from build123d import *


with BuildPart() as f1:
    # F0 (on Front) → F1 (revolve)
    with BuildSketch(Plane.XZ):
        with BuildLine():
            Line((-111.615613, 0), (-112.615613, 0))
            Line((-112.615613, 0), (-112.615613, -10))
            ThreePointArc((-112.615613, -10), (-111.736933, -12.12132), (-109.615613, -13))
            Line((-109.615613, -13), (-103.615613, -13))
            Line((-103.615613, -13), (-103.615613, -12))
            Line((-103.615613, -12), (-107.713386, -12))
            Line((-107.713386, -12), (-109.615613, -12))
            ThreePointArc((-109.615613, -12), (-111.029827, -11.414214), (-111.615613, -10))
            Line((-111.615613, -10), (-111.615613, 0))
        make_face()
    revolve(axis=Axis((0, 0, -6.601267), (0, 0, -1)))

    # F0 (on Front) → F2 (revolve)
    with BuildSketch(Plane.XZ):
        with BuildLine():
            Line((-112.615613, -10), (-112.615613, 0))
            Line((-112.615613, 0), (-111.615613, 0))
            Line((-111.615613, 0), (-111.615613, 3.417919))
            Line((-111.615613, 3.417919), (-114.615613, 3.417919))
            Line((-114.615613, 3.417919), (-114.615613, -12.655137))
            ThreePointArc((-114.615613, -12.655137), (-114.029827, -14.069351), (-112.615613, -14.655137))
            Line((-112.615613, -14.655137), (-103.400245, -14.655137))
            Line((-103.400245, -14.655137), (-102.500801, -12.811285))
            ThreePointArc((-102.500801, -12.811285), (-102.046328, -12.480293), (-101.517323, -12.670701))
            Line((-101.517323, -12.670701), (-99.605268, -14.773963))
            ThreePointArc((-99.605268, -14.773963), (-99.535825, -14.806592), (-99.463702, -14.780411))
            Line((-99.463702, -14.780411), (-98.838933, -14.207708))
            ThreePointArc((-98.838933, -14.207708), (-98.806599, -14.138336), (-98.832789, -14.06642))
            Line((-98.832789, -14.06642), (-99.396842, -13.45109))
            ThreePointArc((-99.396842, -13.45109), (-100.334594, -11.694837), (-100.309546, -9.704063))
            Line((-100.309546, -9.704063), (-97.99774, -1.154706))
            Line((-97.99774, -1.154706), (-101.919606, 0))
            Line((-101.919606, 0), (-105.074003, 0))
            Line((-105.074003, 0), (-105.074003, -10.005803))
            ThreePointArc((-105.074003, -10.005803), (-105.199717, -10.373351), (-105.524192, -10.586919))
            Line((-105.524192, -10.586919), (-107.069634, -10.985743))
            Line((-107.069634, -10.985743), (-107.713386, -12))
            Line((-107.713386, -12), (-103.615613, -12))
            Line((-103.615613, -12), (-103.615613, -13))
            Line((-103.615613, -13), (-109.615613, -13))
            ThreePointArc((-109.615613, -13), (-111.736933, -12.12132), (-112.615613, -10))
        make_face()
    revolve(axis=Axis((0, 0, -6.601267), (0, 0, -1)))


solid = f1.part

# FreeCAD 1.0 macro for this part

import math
import FreeCAD as App
import Part
import Sketcher

V = App.Vector

doc = App.newDocument("Part")
body = doc.addObject("PartDesign::Body", "Body")

# Sketch on XZ plane
sketch1 = body.newObject("Sketcher::SketchObject", "Sketch")
sketch1.AttachmentSupport = (doc.getObject("XZ_Plane"), [""])
sketch1.MapMode = "FlatFace"
sketch1.addGeometry([
    Part.LineSegment(V(-111.615613, 0, 0), V(-112.615613, 0, 0)),  # 0
    Part.LineSegment(V(-112.615613, 0, 0), V(-112.615613, -10, 0)),  # 1
    Part.ArcOfCircle(Part.Circle(V(-109.615612, -9.999999, 0), V(0, 0, 1), 3.000001), math.radians(-179.999978), math.radians(-90.000022)),  # 2
    Part.LineSegment(V(-109.615613, -13, 0), V(-103.615613, -13, 0)),  # 3
    Part.LineSegment(V(-103.615613, -13, 0), V(-103.615613, -12, 0)),  # 4
    Part.LineSegment(V(-103.615613, -12, 0), V(-109.615613, -12, 0)),  # 5
    Part.ArcOfCircle(Part.Circle(V(-109.615614, -10.000001, 0), V(0, 0, 1), 1.999999), math.radians(179.999957), math.radians(270.000043)),  # 6
    Part.LineSegment(V(-111.615613, -10, 0), V(-111.615613, 0, 0)),  # 7
], False)
sketch1.addConstraint([
    Sketcher.Constraint("Coincident", 0, 2, 1, 1),
    Sketcher.Constraint("Tangent", 1, 2, 2, 1),
    Sketcher.Constraint("Tangent", 2, 2, 3, 1),
    Sketcher.Constraint("Coincident", 3, 2, 4, 1),
    Sketcher.Constraint("Coincident", 4, 2, 5, 1),
    Sketcher.Constraint("Tangent", 5, 2, 6, 2),
    Sketcher.Constraint("Tangent", 6, 1, 7, 1),
    Sketcher.Constraint("Coincident", 7, 2, 0, 1),
    Sketcher.Constraint("Horizontal", 0),
    Sketcher.Constraint("Vertical", 1),
    Sketcher.Constraint("Horizontal", 3),
    Sketcher.Constraint("Vertical", 4),
    Sketcher.Constraint("Horizontal", 5),
    Sketcher.Constraint("Vertical", 7),
    Sketcher.Constraint("Coincident", 6, 3, 2, 3),
    Sketcher.Constraint("PointOnObject", 0, 2, -1),
    Sketcher.Constraint("Radius", 2, 3.000001),
    Sketcher.Constraint("Radius", 6, 1.999999),
    Sketcher.Constraint("DistanceX", 3, 1, 3, 2, 6.0),
    Sketcher.Constraint("DistanceY", 1, 2, 1, 1, 10.0),
    Sketcher.Constraint("DistanceX", 2, 3, -1, 1, 109.615612),
])
revolution = body.newObject("PartDesign::Revolution", "Revolution")
revolution.Profile = sketch1
revolution.ReferenceAxis = (sketch1, ["V_Axis"])
revolution.Angle = 360

# Sketch on XZ plane
sketch2 = body.newObject("Sketcher::SketchObject", "Sketch001")
sketch2.AttachmentSupport = (doc.getObject("XZ_Plane"), [""])
sketch2.MapMode = "FlatFace"
sketch2.addGeometry([
    Part.LineSegment(V(-112.615613, -10, 0), V(-112.615613, 0, 0)),  # 0
    Part.LineSegment(V(-112.615613, 0, 0), V(-111.615613, 0, 0)),  # 1
    Part.LineSegment(V(-111.615613, 0, 0), V(-111.615613, 3.417919, 0)),  # 2
    Part.LineSegment(V(-111.615613, 3.417919, 0), V(-114.615613, 3.417919, 0)),  # 3
    Part.LineSegment(V(-114.615613, 3.417919, 0), V(-114.615613, -12.655137, 0)),  # 4
    Part.ArcOfCircle(Part.Circle(V(-112.615614, -12.655138, 0), V(0, 0, 1), 1.999999), math.radians(179.999957), math.radians(270.000043)),  # 5
    Part.LineSegment(V(-112.615613, -14.655137, 0), V(-103.400245, -14.655137, 0)),  # 6
    Part.LineSegment(V(-103.400245, -14.655137, 0), V(-102.500801, -12.811285, 0)),  # 7
    Part.ArcOfCircle(Part.Circle(V(-101.961402, -13.074408, 0), V(0, 0, 1), 0.600155), math.radians(42.273647), math.radians(153.996508)),  # 8
    Part.LineSegment(V(-101.517323, -12.670701, 0), V(-99.605268, -14.773963, 0)),  # 9
    Part.ArcOfCircle(Part.Circle(V(-99.531274, -14.706696, 0), V(0, 0, 1), 0.1), math.radians(-137.72633), math.radians(-47.489442)),  # 10
    Part.LineSegment(V(-99.463702, -14.780411, 0), V(-98.838933, -14.207708, 0)),  # 11
    Part.ArcOfCircle(Part.Circle(V(-98.906504, -14.133992, 0), V(0, 0, 1), 0.099999), math.radians(-47.490358), math.radians(42.510408)),  # 12
    Part.LineSegment(V(-98.832789, -14.06642, 0), V(-99.396842, -13.45109, 0)),  # 13
    Part.ArcOfCircle(Part.Circle(V(-96.448223, -10.748191, 0), V(0, 0, 1), 4.000002), math.radians(164.868703), math.radians(222.510434)),  # 14
    Part.LineSegment(V(-100.309546, -9.704063, 0), V(-97.99774, -1.154706, 0)),  # 15
    Part.LineSegment(V(-97.99774, -1.154706, 0), V(-101.919606, 0, 0)),  # 16
    Part.LineSegment(V(-101.919606, 0, 0), V(-105.074003, 0, 0)),  # 17
    Part.LineSegment(V(-105.074003, 0, 0), V(-105.074003, -10.005803, 0)),  # 18
    Part.ArcOfCircle(Part.Circle(V(-105.674158, -10.005803, 0), V(0, 0, 1), 0.600155), math.radians(-75.529669), math.radians(-0.000026)),  # 19
    Part.LineSegment(V(-105.524192, -10.586919, 0), V(-107.069634, -10.985743, 0)),  # 20
    Part.LineSegment(V(-107.069634, -10.985743, 0), V(-107.713386, -12, 0)),  # 21
    Part.LineSegment(V(-107.713386, -12, 0), V(-103.615613, -12, 0)),  # 22
    Part.LineSegment(V(-103.615613, -12, 0), V(-103.615613, -13, 0)),  # 23
    Part.LineSegment(V(-103.615613, -13, 0), V(-109.615613, -13, 0)),  # 24
    Part.ArcOfCircle(Part.Circle(V(-109.615612, -9.999999, 0), V(0, 0, 1), 3.000001), math.radians(-179.999978), math.radians(-90.000022)),  # 25
], False)
sketch2.addConstraint([
    Sketcher.Constraint("Coincident", 0, 2, 1, 1),
    Sketcher.Constraint("Coincident", 1, 2, 2, 1),
    Sketcher.Constraint("Coincident", 2, 2, 3, 1),
    Sketcher.Constraint("Coincident", 3, 2, 4, 1),
    Sketcher.Constraint("Coincident", 4, 2, 5, 1),
    Sketcher.Constraint("Coincident", 5, 2, 6, 1),
    Sketcher.Constraint("Coincident", 6, 2, 7, 1),
    Sketcher.Constraint("Coincident", 7, 2, 8, 2),
    Sketcher.Constraint("Coincident", 8, 1, 9, 1),
    Sketcher.Constraint("Coincident", 9, 2, 10, 1),
    Sketcher.Constraint("Coincident", 10, 2, 11, 1),
    Sketcher.Constraint("Coincident", 11, 2, 12, 1),
    Sketcher.Constraint("Coincident", 12, 2, 13, 1),
    Sketcher.Constraint("Coincident", 13, 2, 14, 2),
    Sketcher.Constraint("Coincident", 14, 1, 15, 1),
    Sketcher.Constraint("Coincident", 15, 2, 16, 1),
    Sketcher.Constraint("Coincident", 16, 2, 17, 1),
    Sketcher.Constraint("Coincident", 17, 2, 18, 1),
    Sketcher.Constraint("Coincident", 18, 2, 19, 2),
    Sketcher.Constraint("Coincident", 19, 1, 20, 1),
    Sketcher.Constraint("Coincident", 20, 2, 21, 1),
    Sketcher.Constraint("Coincident", 21, 2, 22, 1),
    Sketcher.Constraint("Coincident", 22, 2, 23, 1),
    Sketcher.Constraint("Coincident", 23, 2, 24, 1),
    Sketcher.Constraint("Coincident", 24, 2, 25, 2),
    Sketcher.Constraint("Coincident", 25, 1, 0, 1),
    Sketcher.Constraint("Vertical", 0),
    Sketcher.Constraint("Horizontal", 1),
    Sketcher.Constraint("Vertical", 2),
    Sketcher.Constraint("Horizontal", 3),
    Sketcher.Constraint("Vertical", 4),
    Sketcher.Constraint("Horizontal", 6),
    Sketcher.Constraint("Horizontal", 17),
    Sketcher.Constraint("Vertical", 18),
    Sketcher.Constraint("Horizontal", 22),
    Sketcher.Constraint("Vertical", 23),
    Sketcher.Constraint("Horizontal", 24),
    Sketcher.Constraint("PointOnObject", 0, 2, -1),
    Sketcher.Constraint("PointOnObject", 16, 2, -1),
    Sketcher.Constraint("Radius", 5, 1.999999),
    Sketcher.Constraint("Radius", 14, 4.000002),
    Sketcher.Constraint("Radius", 25, 3.000001),
    Sketcher.Constraint("Radius", 10, 0.1),
    Sketcher.Constraint("Radius", 12, 0.099999),
    Sketcher.Constraint("DistanceX", 1, 1, 1, 2, 1.0),
    Sketcher.Constraint("DistanceX", 3, 2, 3, 1, 3.0),
    Sketcher.Constraint("DistanceX", 24, 2, 24, 1, 6.0),
    Sketcher.Constraint("DistanceY", 0, 1, 0, 2, 10.0),
    Sketcher.Constraint("DistanceY", 23, 2, 23, 1, 1.0),
    Sketcher.Constraint("DistanceY", 25, 3, -1, 1, 9.999999),
    Sketcher.Constraint("DistanceX", 4, 2, 5, 2, 2.0),
    Sketcher.Constraint("DistanceY", 5, 2, 4, 2, 2.0),
    Sketcher.Constraint("DistanceX", 5, 3, 24, 2, 3.000001),
    Sketcher.Constraint("Radius", 8, 0.600155),
    Sketcher.Constraint("Radius", 19, 0.600155),
    Sketcher.Constraint("DistanceY", 2, 1, 2, 2, 3.417919),
    Sketcher.Constraint("DistanceX", 8, 3, -1, 1, 101.961402),
    Sketcher.Constraint("DistanceX", 7, 2, -1, 1, 102.500801),
    Sketcher.Constraint("DistanceY", 8, 1, -1, 1, 12.670701),
    Sketcher.Constraint("DistanceX", 10, 2, -1, 1, 99.463702),
    Sketcher.Constraint("DistanceY", 12, 3, 14, 3, 3.385801),
    Sketcher.Constraint("DistanceX", 18, 2, 8, 3, 3.112601),
    Sketcher.Constraint("Distance", 11, 0.847541),
    Sketcher.Constraint("DistanceX", 6, 1, 6, 2, 9.215368),
    Sketcher.Constraint("DistanceX", 17, 2, 17, 1, 3.154397),
    Sketcher.Constraint("DistanceX", 22, 1, 22, 2, 4.097773),
    Sketcher.Constraint("DistanceY", 4, 2, 4, 1, 16.073056),
    Sketcher.Constraint("DistanceY", 18, 2, 18, 1, 10.005803),
    Sketcher.Constraint("DistanceY", 8, 3, -1, 1, 13.074408),
    Sketcher.Constraint("DistanceY", 14, 3, -1, 1, 10.748191),
    Sketcher.Constraint("DistanceX", 25, 3, -1, 1, 109.615612),
    Sketcher.Constraint("DistanceY", 10, 2, -1, 1, 14.780411),
    Sketcher.Constraint("DistanceX", 12, 2, -1, 1, 98.832789),
    Sketcher.Constraint("DistanceY", 12, 2, -1, 1, 14.06642),
    Sketcher.Constraint("DistanceY", 13, 2, -1, 1, 13.45109),
    Sketcher.Constraint("DistanceX", 15, 2, -1, 1, 97.99774),
    Sketcher.Constraint("DistanceX", 19, 1, -1, 1, 105.524192),
    Sketcher.Constraint("DistanceY", 19, 1, -1, 1, 10.586919),
    Sketcher.Constraint("DistanceX", 5, 3, 10, 3, 13.08434),
    Sketcher.Constraint("DistanceX", 12, 3, 14, 3, 2.458281),
    Sketcher.Constraint("DistanceY", 9, 2, 12, 3, 0.639971),
    Sketcher.Constraint("DistanceX", 16, 2, 14, 1, 1.61006),
    Sketcher.Constraint("DistanceY", 20, 2, 19, 3, 0.97994),
    Sketcher.Constraint("DistanceX", 20, 2, 18, 2, 1.995631),
    Sketcher.Constraint("Distance", 15, 8.856407),
])
revolution2 = body.newObject("PartDesign::Revolution", "Revolution001")
revolution2.Profile = sketch2
revolution2.ReferenceAxis = (sketch2, ["V_Axis"])
revolution2.Angle = 360

doc.recompute()
